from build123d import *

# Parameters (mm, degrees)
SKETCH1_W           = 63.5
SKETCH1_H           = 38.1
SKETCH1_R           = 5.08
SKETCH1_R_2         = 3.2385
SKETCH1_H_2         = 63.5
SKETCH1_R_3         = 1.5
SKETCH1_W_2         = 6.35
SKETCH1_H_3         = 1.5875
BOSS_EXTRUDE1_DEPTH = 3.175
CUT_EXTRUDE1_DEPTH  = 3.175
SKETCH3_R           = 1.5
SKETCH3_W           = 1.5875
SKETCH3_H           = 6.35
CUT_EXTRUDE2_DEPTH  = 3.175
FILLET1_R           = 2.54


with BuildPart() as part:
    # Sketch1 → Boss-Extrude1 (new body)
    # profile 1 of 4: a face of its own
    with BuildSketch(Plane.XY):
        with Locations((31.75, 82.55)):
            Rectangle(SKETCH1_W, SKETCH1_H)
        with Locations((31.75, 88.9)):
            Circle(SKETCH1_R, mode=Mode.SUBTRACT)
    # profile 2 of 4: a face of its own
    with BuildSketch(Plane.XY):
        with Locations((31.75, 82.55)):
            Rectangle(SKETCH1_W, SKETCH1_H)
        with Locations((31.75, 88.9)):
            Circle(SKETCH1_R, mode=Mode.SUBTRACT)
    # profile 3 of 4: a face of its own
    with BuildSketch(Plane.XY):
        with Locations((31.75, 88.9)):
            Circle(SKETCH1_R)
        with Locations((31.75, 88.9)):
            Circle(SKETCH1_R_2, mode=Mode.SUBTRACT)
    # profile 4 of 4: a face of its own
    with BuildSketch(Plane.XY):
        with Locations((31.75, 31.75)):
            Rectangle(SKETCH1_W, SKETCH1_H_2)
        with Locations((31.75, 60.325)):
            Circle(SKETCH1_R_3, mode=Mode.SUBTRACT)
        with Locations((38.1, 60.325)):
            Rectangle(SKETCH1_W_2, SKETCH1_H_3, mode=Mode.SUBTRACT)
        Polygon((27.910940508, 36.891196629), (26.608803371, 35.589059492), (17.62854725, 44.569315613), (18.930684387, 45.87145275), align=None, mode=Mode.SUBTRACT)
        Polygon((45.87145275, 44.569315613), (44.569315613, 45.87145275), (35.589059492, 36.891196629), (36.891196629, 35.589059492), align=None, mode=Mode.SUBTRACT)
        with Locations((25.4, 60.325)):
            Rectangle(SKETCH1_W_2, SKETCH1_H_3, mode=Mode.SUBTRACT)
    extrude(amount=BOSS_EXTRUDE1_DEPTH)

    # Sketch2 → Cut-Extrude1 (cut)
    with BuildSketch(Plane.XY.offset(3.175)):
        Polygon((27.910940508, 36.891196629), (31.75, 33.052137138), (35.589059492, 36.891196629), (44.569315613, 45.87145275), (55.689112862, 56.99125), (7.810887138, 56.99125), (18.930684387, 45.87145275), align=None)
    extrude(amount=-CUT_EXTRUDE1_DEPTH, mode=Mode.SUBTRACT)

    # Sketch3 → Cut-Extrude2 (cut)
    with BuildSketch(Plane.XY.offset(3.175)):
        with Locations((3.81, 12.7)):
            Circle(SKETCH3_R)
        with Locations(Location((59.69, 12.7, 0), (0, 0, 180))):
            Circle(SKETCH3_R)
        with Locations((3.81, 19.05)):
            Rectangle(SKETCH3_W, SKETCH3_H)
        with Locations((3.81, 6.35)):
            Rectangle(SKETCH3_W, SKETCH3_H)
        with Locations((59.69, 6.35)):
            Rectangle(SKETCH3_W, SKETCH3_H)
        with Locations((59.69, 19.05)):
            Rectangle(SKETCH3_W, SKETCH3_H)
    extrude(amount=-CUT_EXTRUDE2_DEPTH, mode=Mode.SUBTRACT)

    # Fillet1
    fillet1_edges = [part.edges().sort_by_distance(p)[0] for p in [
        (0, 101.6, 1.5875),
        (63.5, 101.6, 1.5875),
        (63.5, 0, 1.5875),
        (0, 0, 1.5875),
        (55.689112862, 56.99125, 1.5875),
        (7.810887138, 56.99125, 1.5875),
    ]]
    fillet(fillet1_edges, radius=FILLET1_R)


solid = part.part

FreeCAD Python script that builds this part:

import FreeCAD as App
import Part
import Sketcher

V = App.Vector
Q = App.Units.Quantity


def edges_at(feature, points):
    """Names of the edges that pass closest to the given points."""
    edges = feature.Shape.Edges
    near = lambda p: min(range(len(edges)), key=lambda i: edges[i].distToShape(Part.Vertex(*p))[0])
    return sorted({f"Edge{near(p) + 1}" for p in points})

doc = App.newDocument("Part")
body = doc.addObject("PartDesign::Body", "Body")

# Sketch on XY plane
sketch1 = doc.addObject("Sketcher::SketchObject", "Sketch")
body.addObject(sketch1)
sketch1.AttachmentSupport = (doc.XY_Plane, [""])
sketch1.MapMode = "FlatFace"
sketch1.addGeometry(Part.LineSegment(V(0, 101.6, 0), V(0, 0, 0)), False)
sketch1.addGeometry(Part.LineSegment(V(0, 0, 0), V(63.5, 0, 0)), False)
sketch1.addGeometry(Part.LineSegment(V(63.5, 0, 0), V(63.5, 101.6, 0)), False)
sketch1.addGeometry(Part.LineSegment(V(63.5, 101.6, 0), V(0, 101.6, 0)), False)
sketch1.addGeometry(Part.LineSegment(V(34.925, 61.11875, 0), V(41.275, 61.11875, 0)), False)
sketch1.addGeometry(Part.LineSegment(V(41.275, 61.11875, 0), V(41.275, 59.53125, 0)), False)
sketch1.addGeometry(Part.LineSegment(V(41.275, 59.53125, 0), V(34.925, 59.53125, 0)), False)
sketch1.addGeometry(Part.LineSegment(V(34.925, 59.53125, 0), V(34.925, 61.11875, 0)), False)
sketch1.addGeometry(Part.LineSegment(V(18.930684, 45.871453, 0), V(27.910941, 36.891197, 0)), False)
sketch1.addGeometry(Part.LineSegment(V(27.910941, 36.891197, 0), V(26.608803, 35.589059, 0)), False)
sketch1.addGeometry(Part.LineSegment(V(26.608803, 35.589059, 0), V(17.628547, 44.569316, 0)), False)
sketch1.addGeometry(Part.LineSegment(V(17.628547, 44.569316, 0), V(18.930684, 45.871453, 0)), False)
sketch1.addGeometry(Part.LineSegment(V(44.569316, 45.871453, 0), V(45.871453, 44.569316, 0)), False)
sketch1.addGeometry(Part.LineSegment(V(45.871453, 44.569316, 0), V(36.891197, 35.589059, 0)), False)
sketch1.addGeometry(Part.LineSegment(V(36.891197, 35.589059, 0), V(35.589059, 36.891197, 0)), False)
sketch1.addGeometry(Part.LineSegment(V(35.589059, 36.891197, 0), V(44.569316, 45.871453, 0)), False)
sketch1.addGeometry(Part.LineSegment(V(28.575, 59.53125, 0), V(22.225, 59.53125, 0)), False)
sketch1.addGeometry(Part.LineSegment(V(22.225, 59.53125, 0), V(22.225, 61.11875, 0)), False)
sketch1.addGeometry(Part.LineSegment(V(22.225, 61.11875, 0), V(28.575, 61.11875, 0)), False)
sketch1.addGeometry(Part.LineSegment(V(28.575, 61.11875, 0), V(28.575, 59.53125, 0)), False)
sketch1.addGeometry(Part.Circle(V(31.75, 60.325, 0), V(0, 0, 1), 1.5), False)
sketch1.addGeometry(Part.Circle(V(31.75, 88.9, 0), V(0, 0, 1), 3.2385), False)
sketch1.addConstraint(Sketcher.Constraint("Coincident", 0, 2, 1, 1))
sketch1.addConstraint(Sketcher.Constraint("Coincident", 1, 2, 2, 1))
sketch1.addConstraint(Sketcher.Constraint("Coincident", 2, 2, 3, 1))
sketch1.addConstraint(Sketcher.Constraint("Coincident", 3, 2, 0, 1))
sketch1.addConstraint(Sketcher.Constraint("Coincident", 4, 2, 5, 1))
sketch1.addConstraint(Sketcher.Constraint("Coincident", 5, 2, 6, 1))
sketch1.addConstraint(Sketcher.Constraint("Coincident", 6, 2, 7, 1))
sketch1.addConstraint(Sketcher.Constraint("Coincident", 7, 2, 4, 1))
sketch1.addConstraint(Sketcher.Constraint("Coincident", 8, 2, 9, 1))
sketch1.addConstraint(Sketcher.Constraint("Coincident", 9, 2, 10, 1))
sketch1.addConstraint(Sketcher.Constraint("Coincident", 10, 2, 11, 1))
sketch1.addConstraint(Sketcher.Constraint("Coincident", 11, 2, 8, 1))
sketch1.addConstraint(Sketcher.Constraint("Coincident", 12, 2, 13, 1))
sketch1.addConstraint(Sketcher.Constraint("Coincident", 13, 2, 14, 1))
sketch1.addConstraint(Sketcher.Constraint("Coincident", 14, 2, 15, 1))
sketch1.addConstraint(Sketcher.Constraint("Coincident", 15, 2, 12, 1))
sketch1.addConstraint(Sketcher.Constraint("Coincident", 16, 2, 17, 1))
sketch1.addConstraint(Sketcher.Constraint("Coincident", 17, 2, 18, 1))
sketch1.addConstraint(Sketcher.Constraint("Coincident", 18, 2, 19, 1))
sketch1.addConstraint(Sketcher.Constraint("Coincident", 19, 2, 16, 1))
sketch1.addConstraint(Sketcher.Constraint("Vertical", 0))
sketch1.addConstraint(Sketcher.Constraint("Horizontal", 1))
sketch1.addConstraint(Sketcher.Constraint("Vertical", 2))
sketch1.addConstraint(Sketcher.Constraint("Horizontal", 3))
sketch1.addConstraint(Sketcher.Constraint("Horizontal", 4))
sketch1.addConstraint(Sketcher.Constraint("Vertical", 5))
sketch1.addConstraint(Sketcher.Constraint("Horizontal", 6))
sketch1.addConstraint(Sketcher.Constraint("Vertical", 7))
sketch1.addConstraint(Sketcher.Constraint("Horizontal", 16))
sketch1.addConstraint(Sketcher.Constraint("Vertical", 17))
sketch1.addConstraint(Sketcher.Constraint("Horizontal", 18))
sketch1.addConstraint(Sketcher.Constraint("Vertical", 19))
sketch1.addConstraint(Sketcher.Constraint("Coincident", 0, 2, -1, 1))
sketch1.addConstraint(Sketcher.Constraint("Perpendicular", 8, 9))
sketch1.addConstraint(Sketcher.Constraint("Perpendicular", 9, 10))
sketch1.addConstraint(Sketcher.Constraint("Perpendicular", 10, 11))
sketch1.addConstraint(Sketcher.Constraint("Perpendicular", 11, 12))
sketch1.addConstraint(Sketcher.Constraint("Perpendicular", 12, 13))
sketch1.addConstraint(Sketcher.Constraint("Perpendicular", 13, 14))
sketch1.addConstraint(Sketcher.Constraint("Perpendicular", 14, 15))
sketch1.addConstraint(Sketcher.Constraint("Horizontal", 10, 2, 12, 2))
sketch1.addConstraint(Sketcher.Constraint("Horizontal", 9, 2, 13, 2))
sketch1.addConstraint(Sketcher.Constraint("Horizontal", 8, 2, 14, 2))
sketch1.addConstraint(Sketcher.Constraint("Horizontal", 6, 2, 16, 2))
sketch1.addConstraint(Sketcher.Constraint("Horizontal", 7, 2, 17, 2))
sketch1.addConstraint(Sketcher.Constraint("Vertical", 20, 3, 21, 3))
sketch1.addConstraint(Sketcher.Constraint("Equal", 6, 16))
sketch1.addConstraint(Sketcher.Constraint("Equal", 11, 12))
sketch1.addConstraint(Sketcher.Constraint("DistanceY", 0, 2, 0, 1, Q("4 in")))
sketch1.addConstraint(Sketcher.Constraint("Diameter", 21, Q("0.255 in")))
sketch1.addConstraint(Sketcher.Constraint("DistanceX", 1, 1, 1, 2, Q("2.5 in")))
sketch1.addConstraint(Sketcher.Constraint("Distance", 8, Q("0.5 in")))
sketch1.addConstraint(Sketcher.Constraint("DistanceX", 4, 1, 4, 2, Q("0.25 in")))
sketch1.addConstraint(Sketcher.Constraint("DistanceY", -1, 1, 21, 3, Q("3.5 in")))
sketch1.addConstraint(Sketcher.Constraint("DistanceX", 16, 2, 6, 2, Q("0.5 in")))
sketch1.addConstraint(Sketcher.Constraint("Diameter", 20, Q("3 mm")))
sketch1.addConstraint(Sketcher.Constraint("DistanceY", 5, 2, 5, 1, Q("0.0625 in")))
sketch1.addConstraint(Sketcher.Constraint("DistanceX", -1, 1, 20, 3, Q("1.25 in")))
sketch1.addConstraint(Sketcher.Constraint("DistanceY", -1, 1, 20, 3, Q("2.375 in")))
sketch1.addConstraint(Sketcher.Constraint("DistanceX", -1, 1, 4, 2, Q("1.625 in")))
sketch1.addConstraint(Sketcher.Constraint("DistanceY", -1, 1, 4, 2, Q("2.40625 in")))
sketch1.addConstraint(Sketcher.Constraint("Distance", 9, Q("0.0725 in")))
sketch1.addConstraint(Sketcher.Constraint("DistanceX", -1, 1, 8, 2, Q("27.910941 mm")))
sketch1.addConstraint(Sketcher.Constraint("DistanceY", -1, 1, 9, 2, Q("35.589059 mm")))
sketch1.addConstraint(Sketcher.Constraint("DistanceX", -1, 1, 14, 2, Q("35.589059 mm")))
pad1 = doc.addObject("PartDesign::Pad", "Pad")
body.addObject(pad1)
pad1.Profile = sketch1
pad1.Length = Q("0.125 in")

# Sketch on XY plane
sketch2 = doc.addObject("Sketcher::SketchObject", "Sketch001")
body.addObject(sketch2)
sketch2.AttachmentSupport = (doc.XY_Plane, [""])
sketch2.MapMode = "FlatFace"
sketch2.AttachmentOffset = App.Placement(V(0, 0, 0.125 * 25.4), App.Rotation())
sketch2.addGeometry(Part.LineSegment(V(27.910941, 36.891197, 0), V(31.75, 33.052137, 0)), False)
sketch2.addGeometry(Part.LineSegment(V(31.75, 33.052137, 0), V(35.589059, 36.891197, 0)), False)
sketch2.addGeometry(Part.LineSegment(V(35.589059, 36.891197, 0), V(44.569316, 45.871453, 0)), False)
sketch2.addGeometry(Part.LineSegment(V(44.569316, 45.871453, 0), V(55.689113, 56.99125, 0)), False)
sketch2.addGeometry(Part.LineSegment(V(55.689113, 56.99125, 0), V(7.810887, 56.99125, 0)), False)
sketch2.addGeometry(Part.LineSegment(V(7.810887, 56.99125, 0), V(18.930684, 45.871453, 0)), False)
sketch2.addGeometry(Part.LineSegment(V(18.930684, 45.871453, 0), V(27.910941, 36.891197, 0)), False)
sketch2.addConstraint(Sketcher.Constraint("Coincident", 0, 2, 1, 1))
sketch2.addConstraint(Sketcher.Constraint("Coincident", 1, 2, 2, 1))
sketch2.addConstraint(Sketcher.Constraint("Coincident", 2, 2, 3, 1))
sketch2.addConstraint(Sketcher.Constraint("Coincident", 3, 2, 4, 1))
sketch2.addConstraint(Sketcher.Constraint("Coincident", 4, 2, 5, 1))
sketch2.addConstraint(Sketcher.Constraint("Coincident", 5, 2, 6, 1))
sketch2.addConstraint(Sketcher.Constraint("Coincident", 6, 2, 0, 1))
sketch2.addConstraint(Sketcher.Constraint("Horizontal", 4))
sketch2.addConstraint(Sketcher.Constraint("Perpendicular", 0, 1))
sketch2.addConstraint(Sketcher.Constraint("Parallel", 1, 2))
sketch2.addConstraint(Sketcher.Constraint("Parallel", 2, 3))
sketch2.addConstraint(Sketcher.Constraint("Perpendicular", 3, 5))
sketch2.addConstraint(Sketcher.Constraint("Parallel", 5, 6))
sketch2.addConstraint(Sketcher.Constraint("Horizontal", 2, 2, 5, 2))
sketch2.addConstraint(Sketcher.Constraint("Horizontal", 1, 2, 6, 2))
sketch2.addConstraint(Sketcher.Constraint("Equal", 0, 1))
sketch2.addConstraint(Sketcher.Constraint("Distance", 2, Q("0.5 in")))
sketch2.addConstraint(Sketcher.Constraint("DistanceX", -1, 1, 0, 2, Q("1.25 in")))
sketch2.addConstraint(Sketcher.Constraint("Distance", 0, Q("5.42925 mm")))
sketch2.addConstraint(Sketcher.Constraint("Distance", 3, Q("15.725768 mm")))
sketch2.addConstraint(Sketcher.Constraint("DistanceY", -1, 1, 3, 2, Q("56.99125 mm")))
pocket1 = doc.addObject("PartDesign::Pocket", "Pocket")
body.addObject(pocket1)
pocket1.Profile = sketch2
pocket1.Length = Q("0.125 in")

# Sketch on XY plane
sketch3 = doc.addObject("Sketcher::SketchObject", "Sketch002")
body.addObject(sketch3)
sketch3.AttachmentSupport = (doc.XY_Plane, [""])
sketch3.MapMode = "FlatFace"
sketch3.AttachmentOffset = App.Placement(V(0, 0, 0.125 * 25.4), App.Rotation())
sketch3.addGeometry(Part.Circle(V(3.81, 12.7, 0), V(0, 0, 1), 1.5), False)
sketch3.addGeometry(Part.Circle(V(59.69, 12.7, 0), V(0, 0, 1), 1.5), False)
sketch3.addGeometry(Part.LineSegment(V(3.01625, 22.225, 0), V(3.01625, 15.875, 0)), False)
sketch3.addGeometry(Part.LineSegment(V(3.01625, 15.875, 0), V(4.60375, 15.875, 0)), False)
sketch3.addGeometry(Part.LineSegment(V(4.60375, 15.875, 0), V(4.60375, 22.225, 0)), False)
sketch3.addGeometry(Part.LineSegment(V(4.60375, 22.225, 0), V(3.01625, 22.225, 0)), False)
sketch3.addGeometry(Part.LineSegment(V(3.01625, 9.525, 0), V(3.01625, 3.175, 0)), False)
sketch3.addGeometry(Part.LineSegment(V(3.01625, 3.175, 0), V(4.60375, 3.175, 0)), False)
sketch3.addGeometry(Part.LineSegment(V(4.60375, 3.175, 0), V(4.60375, 9.525, 0)), False)
sketch3.addGeometry(Part.LineSegment(V(4.60375, 9.525, 0), V(3.01625, 9.525, 0)), False)
sketch3.addGeometry(Part.LineSegment(V(58.89625, 9.525, 0), V(58.89625, 3.175, 0)), False)
sketch3.addGeometry(Part.LineSegment(V(58.89625, 3.175, 0), V(60.48375, 3.175, 0)), False)
sketch3.addGeometry(Part.LineSegment(V(60.48375, 3.175, 0), V(60.48375, 9.525, 0)), False)
sketch3.addGeometry(Part.LineSegment(V(60.48375, 9.525, 0), V(58.89625, 9.525, 0)), False)
sketch3.addGeometry(Part.LineSegment(V(58.89625, 22.225, 0), V(58.89625, 15.875, 0)), False)
sketch3.addGeometry(Part.LineSegment(V(58.89625, 15.875, 0), V(60.48375, 15.875, 0)), False)
sketch3.addGeometry(Part.LineSegment(V(60.48375, 15.875, 0), V(60.48375, 22.225, 0)), False)
sketch3.addGeometry(Part.LineSegment(V(60.48375, 22.225, 0), V(58.89625, 22.225, 0)), False)
sketch3.addConstraint(Sketcher.Constraint("Coincident", 2, 2, 3, 1))
sketch3.addConstraint(Sketcher.Constraint("Coincident", 3, 2, 4, 1))
sketch3.addConstraint(Sketcher.Constraint("Coincident", 4, 2, 5, 1))
sketch3.addConstraint(Sketcher.Constraint("Coincident", 5, 2, 2, 1))
sketch3.addConstraint(Sketcher.Constraint("Coincident", 6, 2, 7, 1))
sketch3.addConstraint(Sketcher.Constraint("Coincident", 7, 2, 8, 1))
sketch3.addConstraint(Sketcher.Constraint("Coincident", 8, 2, 9, 1))
sketch3.addConstraint(Sketcher.Constraint("Coincident", 9, 2, 6, 1))
sketch3.addConstraint(Sketcher.Constraint("Coincident", 10, 2, 11, 1))
sketch3.addConstraint(Sketcher.Constraint("Coincident", 11, 2, 12, 1))
sketch3.addConstraint(Sketcher.Constraint("Coincident", 12, 2, 13, 1))
sketch3.addConstraint(Sketcher.Constraint("Coincident", 13, 2, 10, 1))
sketch3.addConstraint(Sketcher.Constraint("Coincident", 14, 2, 15, 1))
sketch3.addConstraint(Sketcher.Constraint("Coincident", 15, 2, 16, 1))
sketch3.addConstraint(Sketcher.Constraint("Coincident", 16, 2, 17, 1))
sketch3.addConstraint(Sketcher.Constraint("Coincident", 17, 2, 14, 1))
sketch3.addConstraint(Sketcher.Constraint("Vertical", 2))
sketch3.addConstraint(Sketcher.Constraint("Horizontal", 3))
sketch3.addConstraint(Sketcher.Constraint("Vertical", 4))
sketch3.addConstraint(Sketcher.Constraint("Horizontal", 5))
sketch3.addConstraint(Sketcher.Constraint("Vertical", 6))
sketch3.addConstraint(Sketcher.Constraint("Horizontal", 7))
sketch3.addConstraint(Sketcher.Constraint("Vertical", 8))
sketch3.addConstraint(Sketcher.Constraint("Horizontal", 9))
sketch3.addConstraint(Sketcher.Constraint("Vertical", 10))
sketch3.addConstraint(Sketcher.Constraint("Horizontal", 11))
sketch3.addConstraint(Sketcher.Constraint("Vertical", 12))
sketch3.addConstraint(Sketcher.Constraint("Horizontal", 13))
sketch3.addConstraint(Sketcher.Constraint("Vertical", 14))
sketch3.addConstraint(Sketcher.Constraint("Horizontal", 15))
sketch3.addConstraint(Sketcher.Constraint("Vertical", 16))
sketch3.addConstraint(Sketcher.Constraint("Horizontal", 17))
sketch3.addConstraint(Sketcher.Constraint("Equal", 0, 1))
sketch3.addConstraint(Sketcher.Constraint("Horizontal", 0, 3, 1, 3))
sketch3.addConstraint(Sketcher.Constraint("Horizontal", 7, 2, 10, 2))
sketch3.addConstraint(Sketcher.Constraint("Horizontal", 9, 2, 12, 2))
sketch3.addConstraint(Sketcher.Constraint("Horizontal", 3, 2, 14, 2))
sketch3.addConstraint(Sketcher.Constraint("Horizontal", 5, 2, 16, 2))
sketch3.addConstraint(Sketcher.Constraint("Vertical", 5, 2, 6, 2))
sketch3.addConstraint(Sketcher.Constraint("Vertical", 4, 2, 7, 2))
sketch3.addConstraint(Sketcher.Constraint("Vertical", 13, 2, 14, 2))
sketch3.addConstraint(Sketcher.Constraint("Vertical", 12, 2, 15, 2))
sketch3.addConstraint(Sketcher.Constraint("Equal", 9, 11))
sketch3.addConstraint(Sketcher.Constraint("Equal", 4, 6))
sketch3.addConstraint(Sketcher.Constraint("DistanceY", 2, 2, 2, 1, Q("0.25 in")))
sketch3.addConstraint(Sketcher.Constraint("DistanceY", -1, 1, 0, 3, Q("0.5 in")))
sketch3.addConstraint(Sketcher.Constraint("DistanceX", 0, 3, 1, 3, Q("2.2 in")))
sketch3.addConstraint(Sketcher.Constraint("DistanceY", 6, 2, 2, 2, Q("0.5 in")))
sketch3.addConstraint(Sketcher.Constraint("DistanceX", 6, 2, 10, 2, Q("2.2 in")))
sketch3.addConstraint(Sketcher.Constraint("Diameter", 0, Q("3 mm")))
sketch3.addConstraint(Sketcher.Constraint("DistanceX", 3, 1, 3, 2, Q("0.0625 in")))
sketch3.addConstraint(Sketcher.Constraint("DistanceX", -1, 1, 0, 3, Q("0.15 in")))
sketch3.addConstraint(Sketcher.Constraint("DistanceY", -1, 1, 2, 2, Q("0.625 in")))
sketch3.addConstraint(Sketcher.Constraint("DistanceX", 2, 2, 0, 3, Q("0.03125 in")))
pocket2 = doc.addObject("PartDesign::Pocket", "Pocket001")
body.addObject(pocket2)
pocket2.Profile = sketch3
pocket2.Length = Q("0.125 in")
doc.recompute()

fillet = doc.addObject("PartDesign::Fillet", "Fillet")
body.addObject(fillet)
fillet.Base = (pocket2, edges_at(pocket2, [
    (0, 101.6, 1.587),
    (63.5, 101.6, 1.587),
    (63.5, 0, 1.587),
    (0, 0, 1.587),
    (55.689, 56.991, 1.587),
    (7.811, 56.991, 1.587),
]))
fillet.Radius = Q("0.1 in")

doc.recompute()
